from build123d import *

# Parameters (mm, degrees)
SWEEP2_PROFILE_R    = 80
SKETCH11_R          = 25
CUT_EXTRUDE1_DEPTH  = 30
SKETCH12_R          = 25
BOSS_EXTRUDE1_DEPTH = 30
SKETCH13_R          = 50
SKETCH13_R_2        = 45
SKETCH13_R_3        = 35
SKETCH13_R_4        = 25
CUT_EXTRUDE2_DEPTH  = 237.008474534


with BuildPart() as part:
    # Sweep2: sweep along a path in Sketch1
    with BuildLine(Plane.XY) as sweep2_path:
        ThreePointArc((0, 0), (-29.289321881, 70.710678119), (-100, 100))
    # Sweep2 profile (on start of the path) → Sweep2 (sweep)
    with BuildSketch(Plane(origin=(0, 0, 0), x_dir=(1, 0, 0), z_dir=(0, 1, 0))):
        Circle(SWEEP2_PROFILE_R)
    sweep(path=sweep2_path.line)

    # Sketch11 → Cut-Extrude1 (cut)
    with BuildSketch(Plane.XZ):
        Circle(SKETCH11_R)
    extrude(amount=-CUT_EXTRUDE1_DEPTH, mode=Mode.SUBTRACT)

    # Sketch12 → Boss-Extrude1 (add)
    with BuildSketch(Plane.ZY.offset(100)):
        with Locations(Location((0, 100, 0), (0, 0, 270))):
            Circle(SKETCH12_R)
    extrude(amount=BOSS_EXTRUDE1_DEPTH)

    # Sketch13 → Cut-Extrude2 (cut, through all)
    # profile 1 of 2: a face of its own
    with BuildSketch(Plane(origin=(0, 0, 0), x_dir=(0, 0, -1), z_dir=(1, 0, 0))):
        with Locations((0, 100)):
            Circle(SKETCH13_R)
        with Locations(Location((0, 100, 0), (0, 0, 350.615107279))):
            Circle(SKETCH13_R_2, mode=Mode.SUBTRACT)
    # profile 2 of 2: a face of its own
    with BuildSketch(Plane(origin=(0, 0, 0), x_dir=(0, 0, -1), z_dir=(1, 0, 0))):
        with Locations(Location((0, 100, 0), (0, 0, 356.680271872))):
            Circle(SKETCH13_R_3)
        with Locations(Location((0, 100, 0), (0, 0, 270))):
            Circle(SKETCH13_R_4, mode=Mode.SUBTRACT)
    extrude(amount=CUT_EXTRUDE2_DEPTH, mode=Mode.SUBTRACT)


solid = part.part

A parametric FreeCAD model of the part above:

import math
import FreeCAD as App
import Part
import Sketcher
from FreeCAD import Vector
Q = App.Units.Quantity

doc = App.newDocument("Part")
params = doc.addObject("Spreadsheet::Sheet", "Params")
for row, (alias, value) in enumerate([
    ("sketch1_diameter", "160 mm"),
    ("sketch2_radius", "100 mm"),
    ("sketch3_diameter", "50 mm"),
    ("pocket1_length", "30 mm"),
    ("sketch4_diameter", "50 mm"),
    ("pad1_length", "30 mm"),
    ("sketch5_diameter", "100 mm"),
    ("sketch5_diameter2", "90 mm"),
    ("sketch5_diameter3", "70 mm"),
    ("sketch5_diameter4", "50 mm"),
    ("pocket2_length", "237.008475 mm"),
], start=1):
    params.set(f"A{row}", alias)
    params.set(f"B{row}", "=" + value)
    params.setAlias(f"B{row}", alias)

body = doc.addObject("PartDesign::Body", "Body")

sketch1 = body.newObject("Sketcher::SketchObject", "Sketch")
sketch1.AttachmentSupport = (doc.getObject("XZ_Plane"), [""])
sketch1.MapMode = "FlatFace"
sketch1.addGeometry(Part.Circle(Vector(0, 0, 0), Vector(0, 0, 1), 80), False)
sketch1.addConstraint([
    Sketcher.Constraint("Coincident", 0, 3, -1, 1),
    Sketcher.Constraint("Diameter", 0, Q("160 mm")),
])
sketch1.setExpression("Constraints[1]", "Params.sketch1_diameter")

sketch2 = body.newObject("Sketcher::SketchObject", "Sketch001")
sketch2.AttachmentSupport = (doc.getObject("XY_Plane"), [""])
sketch2.MapMode = "FlatFace"
sketch2.addGeometry(Part.ArcOfCircle(Part.Circle(Vector(-100, 0, 0), Vector(0, 0, 1), 100), math.radians(0), math.radians(90)), False)
sketch2.addConstraint([
    Sketcher.Constraint("Coincident", 0, 1, -1, 1),
    Sketcher.Constraint("PointOnObject", 0, 3, -1),
    Sketcher.Constraint("Radius", 0, Q("100 mm")),
    Sketcher.Constraint("DistanceX", 0, 2, -1, 1, Q("100 mm")),
])
sketch2.setExpression("Constraints[2]", "Params.sketch2_radius")
doc.recompute()

additivepipe = body.newObject("PartDesign::AdditivePipe", "AdditivePipe")
additivepipe.Profile = sketch1
additivepipe.Spine = (sketch2, ["Edge1"])

sketch3 = body.newObject("Sketcher::SketchObject", "Sketch002")
sketch3.AttachmentSupport = (doc.getObject("XZ_Plane"), [""])
sketch3.MapMode = "FlatFace"
sketch3.addGeometry(Part.Circle(Vector(0, 0, 0), Vector(0, 0, 1), 25), False)
sketch3.addConstraint([
    Sketcher.Constraint("Coincident", 0, 3, -1, 1),
    Sketcher.Constraint("Diameter", 0, Q("50 mm")),
])
sketch3.setExpression("Constraints[1]", "Params.sketch3_diameter")
pocket1 = body.newObject("PartDesign::Pocket", "Pocket")
pocket1.Profile = sketch3
pocket1.setExpression("Length", "Params.pocket1_length")

sketch4 = body.newObject("Sketcher::SketchObject", "Sketch003")
sketch4.AttachmentSupport = (doc.getObject("YZ_Plane"), [""])
sketch4.MapMode = "FlatFace"
sketch4.AttachmentOffset = App.Placement(Vector(0, 0, -100), App.Rotation())
sketch4.addGeometry(Part.Circle(Vector(100, 0, 0), Vector(0, 0, 1), 25), False)
sketch4.addConstraint([
    Sketcher.Constraint("PointOnObject", 0, 3, -1),
    Sketcher.Constraint("Diameter", 0, Q("50 mm")),
    Sketcher.Constraint("DistanceX", -1, 1, 0, 3, Q("100 mm")),
])
sketch4.setExpression("Constraints[1]", "Params.sketch4_diameter")
pad1 = body.newObject("PartDesign::Pad", "Pad")
pad1.Profile = sketch4
pad1.setExpression("Length", "Params.pad1_length")
pad1.Reversed = True

sketch5 = body.newObject("Sketcher::SketchObject", "Sketch004")
sketch5.AttachmentSupport = (doc.getObject("YZ_Plane"), [""])
sketch5.MapMode = "FlatFace"
sketch5.addGeometry([
    Part.Circle(Vector(100, 0, 0), Vector(0, 0, 1), 50),
    Part.Circle(Vector(100, 0, 0), Vector(0, 0, 1), 45),
    Part.Circle(Vector(100, 0, 0), Vector(0, 0, 1), 35),
    Part.Circle(Vector(100, 0, 0), Vector(0, 0, 1), 25),
], False)
sketch5.addConstraint([
    Sketcher.Constraint("Coincident", 1, 3, 0, 3),
    Sketcher.Constraint("Coincident", 2, 3, 0, 3),
    Sketcher.Constraint("Coincident", 3, 3, 0, 3),
    Sketcher.Constraint("PointOnObject", 0, 3, -1),
    Sketcher.Constraint("Diameter", 0, Q("100 mm")),
    Sketcher.Constraint("Diameter", 1, Q("90 mm")),
    Sketcher.Constraint("Diameter", 2, Q("70 mm")),
    Sketcher.Constraint("Diameter", 3, Q("50 mm")),
    Sketcher.Constraint("DistanceX", -1, 1, 0, 3, Q("100 mm")),
])
sketch5.setExpression("Constraints[4]", "Params.sketch5_diameter")
sketch5.setExpression("Constraints[5]", "Params.sketch5_diameter2")
sketch5.setExpression("Constraints[6]", "Params.sketch5_diameter3")
sketch5.setExpression("Constraints[7]", "Params.sketch5_diameter4")
pocket2 = body.newObject("PartDesign::Pocket", "Pocket001")
pocket2.Profile = sketch5
pocket2.setExpression("Length", "Params.pocket2_length")
pocket2.Reversed = True

doc.recompute()
